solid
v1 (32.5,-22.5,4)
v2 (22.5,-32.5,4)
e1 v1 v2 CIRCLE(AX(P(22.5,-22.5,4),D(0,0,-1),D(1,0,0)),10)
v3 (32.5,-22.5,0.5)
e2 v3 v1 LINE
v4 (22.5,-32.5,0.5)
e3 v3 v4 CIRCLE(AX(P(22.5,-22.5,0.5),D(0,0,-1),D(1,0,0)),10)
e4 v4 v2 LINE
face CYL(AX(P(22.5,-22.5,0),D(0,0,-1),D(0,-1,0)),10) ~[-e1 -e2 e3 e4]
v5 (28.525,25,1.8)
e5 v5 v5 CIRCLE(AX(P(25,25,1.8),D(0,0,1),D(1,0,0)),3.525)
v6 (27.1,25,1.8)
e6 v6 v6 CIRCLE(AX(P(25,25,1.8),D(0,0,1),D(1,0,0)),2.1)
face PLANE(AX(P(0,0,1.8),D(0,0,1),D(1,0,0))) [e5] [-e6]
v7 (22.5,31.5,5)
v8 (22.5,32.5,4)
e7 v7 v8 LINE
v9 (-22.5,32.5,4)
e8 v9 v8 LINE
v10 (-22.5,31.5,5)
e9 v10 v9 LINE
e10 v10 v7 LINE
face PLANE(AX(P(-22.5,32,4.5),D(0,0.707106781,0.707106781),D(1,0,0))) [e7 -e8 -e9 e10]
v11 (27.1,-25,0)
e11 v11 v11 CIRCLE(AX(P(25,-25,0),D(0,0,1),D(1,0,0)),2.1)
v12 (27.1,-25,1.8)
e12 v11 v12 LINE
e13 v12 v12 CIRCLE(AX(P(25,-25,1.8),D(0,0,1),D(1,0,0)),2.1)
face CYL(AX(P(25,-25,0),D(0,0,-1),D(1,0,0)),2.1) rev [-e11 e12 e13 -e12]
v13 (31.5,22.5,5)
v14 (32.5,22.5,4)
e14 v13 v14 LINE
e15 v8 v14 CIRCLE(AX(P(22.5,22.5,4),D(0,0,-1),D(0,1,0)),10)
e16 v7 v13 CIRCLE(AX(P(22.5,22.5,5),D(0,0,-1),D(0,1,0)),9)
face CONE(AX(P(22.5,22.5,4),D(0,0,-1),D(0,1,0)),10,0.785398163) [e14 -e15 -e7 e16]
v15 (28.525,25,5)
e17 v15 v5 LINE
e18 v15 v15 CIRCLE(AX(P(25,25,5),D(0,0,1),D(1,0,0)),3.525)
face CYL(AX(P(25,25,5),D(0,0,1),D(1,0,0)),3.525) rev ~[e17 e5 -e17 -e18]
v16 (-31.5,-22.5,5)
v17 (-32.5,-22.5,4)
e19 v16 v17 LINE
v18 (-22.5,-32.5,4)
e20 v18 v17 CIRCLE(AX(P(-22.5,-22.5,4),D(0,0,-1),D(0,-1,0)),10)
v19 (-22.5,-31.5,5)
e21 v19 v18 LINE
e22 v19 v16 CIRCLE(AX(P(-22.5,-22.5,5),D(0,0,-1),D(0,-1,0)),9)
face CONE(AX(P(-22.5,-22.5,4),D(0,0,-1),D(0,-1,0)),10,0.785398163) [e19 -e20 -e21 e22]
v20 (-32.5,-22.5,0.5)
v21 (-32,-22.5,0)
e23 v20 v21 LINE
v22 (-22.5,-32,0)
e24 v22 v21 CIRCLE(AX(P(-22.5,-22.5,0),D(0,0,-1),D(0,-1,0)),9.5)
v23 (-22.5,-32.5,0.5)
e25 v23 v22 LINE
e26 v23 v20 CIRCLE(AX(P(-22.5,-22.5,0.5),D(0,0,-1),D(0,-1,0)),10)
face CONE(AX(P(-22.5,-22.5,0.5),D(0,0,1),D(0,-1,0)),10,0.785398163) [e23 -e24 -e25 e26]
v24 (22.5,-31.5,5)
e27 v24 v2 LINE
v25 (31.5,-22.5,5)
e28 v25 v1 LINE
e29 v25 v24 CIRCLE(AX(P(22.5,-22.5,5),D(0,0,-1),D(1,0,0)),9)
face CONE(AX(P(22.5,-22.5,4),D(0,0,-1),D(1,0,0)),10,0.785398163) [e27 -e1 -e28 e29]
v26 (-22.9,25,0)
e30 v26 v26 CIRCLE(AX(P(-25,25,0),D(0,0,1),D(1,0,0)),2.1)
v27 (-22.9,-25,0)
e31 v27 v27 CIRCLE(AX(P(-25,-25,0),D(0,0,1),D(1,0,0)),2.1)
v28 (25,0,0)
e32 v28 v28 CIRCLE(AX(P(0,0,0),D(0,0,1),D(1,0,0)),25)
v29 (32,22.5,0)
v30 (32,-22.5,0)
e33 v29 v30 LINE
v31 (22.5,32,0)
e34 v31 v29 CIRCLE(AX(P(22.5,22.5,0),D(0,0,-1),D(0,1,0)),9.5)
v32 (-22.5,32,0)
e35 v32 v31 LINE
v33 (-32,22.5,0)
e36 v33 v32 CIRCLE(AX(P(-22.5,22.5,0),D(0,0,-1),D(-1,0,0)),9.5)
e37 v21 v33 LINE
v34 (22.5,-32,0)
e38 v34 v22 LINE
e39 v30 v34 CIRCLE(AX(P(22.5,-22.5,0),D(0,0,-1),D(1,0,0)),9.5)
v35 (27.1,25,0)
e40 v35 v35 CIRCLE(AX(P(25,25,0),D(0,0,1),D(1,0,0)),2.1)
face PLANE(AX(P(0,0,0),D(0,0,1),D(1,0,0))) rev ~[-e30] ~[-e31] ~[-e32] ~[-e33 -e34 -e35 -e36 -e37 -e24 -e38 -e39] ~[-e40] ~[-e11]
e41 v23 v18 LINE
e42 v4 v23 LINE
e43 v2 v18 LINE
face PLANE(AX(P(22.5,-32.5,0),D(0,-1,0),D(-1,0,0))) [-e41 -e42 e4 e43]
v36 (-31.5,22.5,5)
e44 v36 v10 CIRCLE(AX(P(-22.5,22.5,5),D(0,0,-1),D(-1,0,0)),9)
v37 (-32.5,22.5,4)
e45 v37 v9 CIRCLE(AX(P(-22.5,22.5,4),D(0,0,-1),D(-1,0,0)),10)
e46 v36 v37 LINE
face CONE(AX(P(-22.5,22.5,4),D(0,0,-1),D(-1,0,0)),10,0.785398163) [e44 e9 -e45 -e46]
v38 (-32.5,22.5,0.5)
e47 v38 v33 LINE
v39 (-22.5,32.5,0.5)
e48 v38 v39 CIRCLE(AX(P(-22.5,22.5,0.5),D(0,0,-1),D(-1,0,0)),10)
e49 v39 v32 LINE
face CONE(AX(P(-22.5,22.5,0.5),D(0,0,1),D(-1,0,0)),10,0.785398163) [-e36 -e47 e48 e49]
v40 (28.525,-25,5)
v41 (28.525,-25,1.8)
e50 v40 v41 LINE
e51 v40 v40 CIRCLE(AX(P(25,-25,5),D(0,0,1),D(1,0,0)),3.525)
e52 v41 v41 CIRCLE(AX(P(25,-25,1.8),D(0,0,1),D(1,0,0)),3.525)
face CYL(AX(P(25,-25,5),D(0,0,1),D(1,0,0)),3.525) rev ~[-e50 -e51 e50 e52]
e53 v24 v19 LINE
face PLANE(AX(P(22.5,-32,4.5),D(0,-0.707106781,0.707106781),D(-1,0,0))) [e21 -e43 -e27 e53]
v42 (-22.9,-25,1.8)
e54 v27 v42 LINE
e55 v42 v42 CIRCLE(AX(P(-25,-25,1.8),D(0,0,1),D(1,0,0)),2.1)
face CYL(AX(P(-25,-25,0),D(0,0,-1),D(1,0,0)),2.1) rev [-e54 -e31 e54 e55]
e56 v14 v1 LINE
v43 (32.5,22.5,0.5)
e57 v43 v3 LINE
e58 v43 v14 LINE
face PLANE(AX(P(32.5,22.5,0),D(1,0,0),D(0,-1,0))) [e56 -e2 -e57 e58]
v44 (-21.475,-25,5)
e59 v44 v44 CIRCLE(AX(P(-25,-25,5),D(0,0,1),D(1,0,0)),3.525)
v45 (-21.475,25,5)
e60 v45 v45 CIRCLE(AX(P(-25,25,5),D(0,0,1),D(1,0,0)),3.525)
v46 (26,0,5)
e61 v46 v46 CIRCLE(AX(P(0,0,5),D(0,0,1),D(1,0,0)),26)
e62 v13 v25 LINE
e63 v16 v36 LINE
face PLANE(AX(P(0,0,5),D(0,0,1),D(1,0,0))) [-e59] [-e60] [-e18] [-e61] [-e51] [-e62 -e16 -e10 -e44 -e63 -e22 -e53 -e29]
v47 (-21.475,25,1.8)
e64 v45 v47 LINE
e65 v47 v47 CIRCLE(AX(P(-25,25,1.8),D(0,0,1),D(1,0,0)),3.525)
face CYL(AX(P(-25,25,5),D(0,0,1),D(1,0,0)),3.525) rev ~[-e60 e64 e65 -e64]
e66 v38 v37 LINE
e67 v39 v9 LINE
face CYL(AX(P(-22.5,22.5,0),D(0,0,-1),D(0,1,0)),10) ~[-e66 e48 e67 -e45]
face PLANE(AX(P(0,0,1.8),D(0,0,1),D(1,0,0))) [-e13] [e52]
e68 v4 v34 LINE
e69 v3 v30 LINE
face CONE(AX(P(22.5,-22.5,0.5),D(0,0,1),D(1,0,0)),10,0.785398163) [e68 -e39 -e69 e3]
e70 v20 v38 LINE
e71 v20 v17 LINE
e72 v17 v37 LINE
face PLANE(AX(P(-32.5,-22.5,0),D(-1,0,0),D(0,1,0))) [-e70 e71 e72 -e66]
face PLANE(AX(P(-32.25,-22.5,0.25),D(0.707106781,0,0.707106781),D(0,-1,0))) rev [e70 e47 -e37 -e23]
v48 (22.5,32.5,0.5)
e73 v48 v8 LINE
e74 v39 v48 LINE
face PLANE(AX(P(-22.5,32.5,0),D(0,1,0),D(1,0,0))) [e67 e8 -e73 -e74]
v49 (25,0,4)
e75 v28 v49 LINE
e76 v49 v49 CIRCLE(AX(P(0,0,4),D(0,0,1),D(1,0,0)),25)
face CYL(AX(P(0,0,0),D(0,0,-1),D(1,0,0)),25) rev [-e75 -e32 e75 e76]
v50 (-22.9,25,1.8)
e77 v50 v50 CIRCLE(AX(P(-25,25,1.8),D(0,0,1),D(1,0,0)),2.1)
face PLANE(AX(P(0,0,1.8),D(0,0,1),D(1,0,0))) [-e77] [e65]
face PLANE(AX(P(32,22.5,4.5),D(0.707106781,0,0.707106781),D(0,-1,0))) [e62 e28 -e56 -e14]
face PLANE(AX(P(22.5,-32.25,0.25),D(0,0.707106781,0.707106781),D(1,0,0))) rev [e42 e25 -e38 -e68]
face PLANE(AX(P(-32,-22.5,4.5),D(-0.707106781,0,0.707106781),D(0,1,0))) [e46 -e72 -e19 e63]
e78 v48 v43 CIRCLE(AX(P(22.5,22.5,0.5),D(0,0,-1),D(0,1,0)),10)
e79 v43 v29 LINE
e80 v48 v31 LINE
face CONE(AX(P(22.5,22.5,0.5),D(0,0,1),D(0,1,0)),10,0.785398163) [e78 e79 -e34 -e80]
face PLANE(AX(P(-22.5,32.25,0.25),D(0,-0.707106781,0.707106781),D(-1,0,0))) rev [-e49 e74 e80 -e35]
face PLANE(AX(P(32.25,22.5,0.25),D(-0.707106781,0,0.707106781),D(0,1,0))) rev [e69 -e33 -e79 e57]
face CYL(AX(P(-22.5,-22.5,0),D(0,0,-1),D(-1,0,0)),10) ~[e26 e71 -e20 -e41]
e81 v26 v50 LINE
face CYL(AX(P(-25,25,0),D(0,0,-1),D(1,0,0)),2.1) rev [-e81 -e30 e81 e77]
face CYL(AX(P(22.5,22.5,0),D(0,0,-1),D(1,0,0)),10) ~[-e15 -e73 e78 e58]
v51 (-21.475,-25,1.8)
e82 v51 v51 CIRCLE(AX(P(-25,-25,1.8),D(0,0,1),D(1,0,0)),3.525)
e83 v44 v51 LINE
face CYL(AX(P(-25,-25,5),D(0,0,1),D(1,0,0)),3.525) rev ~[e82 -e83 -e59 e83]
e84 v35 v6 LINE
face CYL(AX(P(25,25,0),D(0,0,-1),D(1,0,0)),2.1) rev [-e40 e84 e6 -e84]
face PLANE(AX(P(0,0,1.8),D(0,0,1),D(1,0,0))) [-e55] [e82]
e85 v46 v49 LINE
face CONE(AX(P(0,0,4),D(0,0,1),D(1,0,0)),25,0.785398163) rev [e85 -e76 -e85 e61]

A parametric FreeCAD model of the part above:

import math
import FreeCAD as App
import Part
import Sketcher
from FreeCAD import Vector


def edges_at(feature, points):
    """Names of the edges that pass closest to the given points."""
    edges = feature.Shape.Edges
    near = lambda p: min(range(len(edges)), key=lambda i: edges[i].distToShape(Part.Vertex(*p))[0])
    return sorted({f"Edge{near(p) + 1}" for p in points})

doc = App.newDocument("Part")
body = doc.addObject("PartDesign::Body", "Body")

# Sketch on XY plane
sketch1 = body.newObject("Sketcher::SketchObject", "Sketch")
sketch1.AttachmentSupport = (doc.getObject("XY_Plane"), [""])
sketch1.MapMode = "FlatFace"
sketch1.addGeometry(Part.LineSegment(Vector(22.5, 32.5, 0), Vector(-22.5, 32.5, 0)), False)
sketch1.addGeometry(Part.ArcOfCircle(Part.Circle(Vector(-22.5, 22.5, 0), Vector(0, 0, 1), 10), math.radians(90), math.radians(180)), False)
sketch1.addGeometry(Part.LineSegment(Vector(-32.5, 22.5, 0), Vector(-32.5, -22.5, 0)), False)
sketch1.addGeometry(Part.ArcOfCircle(Part.Circle(Vector(-22.5, -22.5, 0), Vector(0, 0, 1), 10), math.radians(180), math.radians(270)), False)
sketch1.addGeometry(Part.LineSegment(Vector(-22.5, -32.5, 0), Vector(22.5, -32.5, 0)), False)
sketch1.addGeometry(Part.ArcOfCircle(Part.Circle(Vector(22.5, -22.5, 0), Vector(0, 0, 1), 10), math.radians(-90), math.radians(0)), False)
sketch1.addGeometry(Part.LineSegment(Vector(32.5, -22.5, 0), Vector(32.5, 22.5, 0)), False)
sketch1.addGeometry(Part.ArcOfCircle(Part.Circle(Vector(22.5, 22.5, 0), Vector(0, 0, 1), 10), math.radians(0), math.radians(90)), False)
sketch1.addGeometry(Part.Circle(Vector(-25, -25, 0), Vector(0, 0, 1), 2.1), False)
sketch1.addGeometry(Part.Circle(Vector(25, -25, 0), Vector(0, 0, 1), 2.1), False)
sketch1.addGeometry(Part.Circle(Vector(-25, 25, 0), Vector(0, 0, 1), 2.1), False)
sketch1.addGeometry(Part.Circle(Vector(0, 0, 0), Vector(0, 0, 1), 25), False)
sketch1.addGeometry(Part.Circle(Vector(25, 25, 0), Vector(0, 0, 1), 2.1), False)
sketch1.addConstraint(Sketcher.Constraint("Tangent", 0, 2, 1, 1))
sketch1.addConstraint(Sketcher.Constraint("Tangent", 1, 2, 2, 1))
sketch1.addConstraint(Sketcher.Constraint("Tangent", 2, 2, 3, 1))
sketch1.addConstraint(Sketcher.Constraint("Tangent", 3, 2, 4, 1))
sketch1.addConstraint(Sketcher.Constraint("Tangent", 4, 2, 5, 1))
sketch1.addConstraint(Sketcher.Constraint("Tangent", 5, 2, 6, 1))
sketch1.addConstraint(Sketcher.Constraint("Tangent", 6, 2, 7, 1))
sketch1.addConstraint(Sketcher.Constraint("Tangent", 7, 2, 0, 1))
sketch1.addConstraint(Sketcher.Constraint("Horizontal", 0))
sketch1.addConstraint(Sketcher.Constraint("Vertical", 2))
sketch1.addConstraint(Sketcher.Constraint("Horizontal", 4))
sketch1.addConstraint(Sketcher.Constraint("Vertical", 6))
sketch1.addConstraint(Sketcher.Constraint("Coincident", 11, 3, -1, 1))
sketch1.addConstraint(Sketcher.Constraint("Equal", 1, 3))
sketch1.addConstraint(Sketcher.Constraint("Equal", 3, 5))
sketch1.addConstraint(Sketcher.Constraint("Equal", 5, 7))
sketch1.addConstraint(Sketcher.Constraint("Equal", 8, 9))
sketch1.addConstraint(Sketcher.Constraint("Equal", 9, 10))
sketch1.addConstraint(Sketcher.Constraint("Equal", 10, 12))
sketch1.addConstraint(Sketcher.Constraint("Symmetric", 1, 3, 5, 3, -1, 1))
sketch1.addConstraint(Sketcher.Constraint("Symmetric", 9, 3, 10, 3, -1, 1))
sketch1.addConstraint(Sketcher.Constraint("Symmetric", 8, 3, 12, 3, -1, 1))
sketch1.addConstraint(Sketcher.Constraint("Symmetric", 8, 3, 9, 3, -2))
sketch1.addConstraint(Sketcher.Constraint("Equal", 4, 2))
sketch1.addConstraint(Sketcher.Constraint("Diameter", 11, 50.0))
sketch1.addConstraint(Sketcher.Constraint("Radius", 1, 10.0))
sketch1.addConstraint(Sketcher.Constraint("Diameter", 8, 4.2))
sketch1.addConstraint(Sketcher.Constraint("DistanceX", 8, 3, -1, 1, 25.0))
sketch1.addConstraint(Sketcher.Constraint("DistanceY", 8, 3, -1, 1, 25.0))
sketch1.addConstraint(Sketcher.Constraint("DistanceX", 0, 2, 0, 1, 45.0))
pad1 = body.newObject("PartDesign::Pad", "Pad")
pad1.Profile = sketch1
pad1.Length = 5

# Sketch on XY plane
sketch2 = body.newObject("Sketcher::SketchObject", "Sketch001")
sketch2.AttachmentSupport = (doc.getObject("XY_Plane"), [""])
sketch2.MapMode = "FlatFace"
sketch2.AttachmentOffset = App.Placement(Vector(0, 0, 5), App.Rotation())
sketch2.addGeometry(Part.Circle(Vector(-25, 25, 0), Vector(0, 0, 1), 3.5), False)
sketch2.addGeometry(Part.Circle(Vector(-25, 25, 0), Vector(0, 0, 1), 2.1), False)
sketch2.addGeometry(Part.Circle(Vector(25, 25, 0), Vector(0, 0, 1), 3.5), False)
sketch2.addGeometry(Part.Circle(Vector(25, 25, 0), Vector(0, 0, 1), 2.1), False)
sketch2.addGeometry(Part.Circle(Vector(-25, -25, 0), Vector(0, 0, 1), 3.5), False)
sketch2.addGeometry(Part.Circle(Vector(-25, -25, 0), Vector(0, 0, 1), 2.1), False)
sketch2.addGeometry(Part.Circle(Vector(25, -25, 0), Vector(0, 0, 1), 3.5), False)
sketch2.addGeometry(Part.Circle(Vector(25, -25, 0), Vector(0, 0, 1), 2.1), False)
sketch2.addConstraint(Sketcher.Constraint("Coincident", 1, 3, 0, 3))
sketch2.addConstraint(Sketcher.Constraint("Coincident", 3, 3, 2, 3))
sketch2.addConstraint(Sketcher.Constraint("Coincident", 5, 3, 4, 3))
sketch2.addConstraint(Sketcher.Constraint("Coincident", 7, 3, 6, 3))
sketch2.addConstraint(Sketcher.Constraint("Equal", 0, 2))
sketch2.addConstraint(Sketcher.Constraint("Equal", 1, 3))
sketch2.addConstraint(Sketcher.Constraint("Equal", 2, 4))
sketch2.addConstraint(Sketcher.Constraint("Equal", 3, 5))
sketch2.addConstraint(Sketcher.Constraint("Equal", 4, 6))
sketch2.addConstraint(Sketcher.Constraint("Equal", 5, 7))
sketch2.addConstraint(Sketcher.Constraint("Symmetric", 2, 3, 4, 3, -1, 1))
sketch2.addConstraint(Sketcher.Constraint("Symmetric", 0, 3, 6, 3, -1, 1))
sketch2.addConstraint(Sketcher.Constraint("Symmetric", 0, 3, 2, 3, -2))
sketch2.addConstraint(Sketcher.Constraint("Diameter", 0, 7.05))
sketch2.addConstraint(Sketcher.Constraint("Diameter", 1, 4.2))
sketch2.addConstraint(Sketcher.Constraint("DistanceX", 0, 3, -1, 1, 25.0))
sketch2.addConstraint(Sketcher.Constraint("DistanceY", -1, 1, 0, 3, 25.0))
pocket1 = body.newObject("PartDesign::Pocket", "Pocket")
pocket1.Profile = sketch2
pocket1.Length = 3.2
doc.recompute()

chamfer = body.newObject("PartDesign::Chamfer", "Chamfer")
chamfer.Base = (pocket1, edges_at(pocket1, [
    (-25, 0, 5),
    (0, -32.5, 5),
    (29.571, -29.571, 5),
    (32.5, 0, 5),
    (29.571, 29.571, 5),
    (0, 32.5, 5),
    (-29.571, 29.571, 5),
    (-32.5, 0, 5),
    (-29.571, -29.571, 5),
]))
chamfer.Size = 1
doc.recompute()

chamfer2 = body.newObject("PartDesign::Chamfer", "Chamfer001")
chamfer2.Base = (chamfer, edges_at(chamfer, [
    (0, 32.5, 0),
    (-29.571, 29.571, 0),
    (-32.5, 0, 0),
    (-29.571, -29.571, 0),
    (0, -32.5, 0),
    (29.571, -29.571, 0),
    (32.5, 0, 0),
    (29.571, 29.571, 0),
]))
chamfer2.Size = 0.5

doc.recompute()
